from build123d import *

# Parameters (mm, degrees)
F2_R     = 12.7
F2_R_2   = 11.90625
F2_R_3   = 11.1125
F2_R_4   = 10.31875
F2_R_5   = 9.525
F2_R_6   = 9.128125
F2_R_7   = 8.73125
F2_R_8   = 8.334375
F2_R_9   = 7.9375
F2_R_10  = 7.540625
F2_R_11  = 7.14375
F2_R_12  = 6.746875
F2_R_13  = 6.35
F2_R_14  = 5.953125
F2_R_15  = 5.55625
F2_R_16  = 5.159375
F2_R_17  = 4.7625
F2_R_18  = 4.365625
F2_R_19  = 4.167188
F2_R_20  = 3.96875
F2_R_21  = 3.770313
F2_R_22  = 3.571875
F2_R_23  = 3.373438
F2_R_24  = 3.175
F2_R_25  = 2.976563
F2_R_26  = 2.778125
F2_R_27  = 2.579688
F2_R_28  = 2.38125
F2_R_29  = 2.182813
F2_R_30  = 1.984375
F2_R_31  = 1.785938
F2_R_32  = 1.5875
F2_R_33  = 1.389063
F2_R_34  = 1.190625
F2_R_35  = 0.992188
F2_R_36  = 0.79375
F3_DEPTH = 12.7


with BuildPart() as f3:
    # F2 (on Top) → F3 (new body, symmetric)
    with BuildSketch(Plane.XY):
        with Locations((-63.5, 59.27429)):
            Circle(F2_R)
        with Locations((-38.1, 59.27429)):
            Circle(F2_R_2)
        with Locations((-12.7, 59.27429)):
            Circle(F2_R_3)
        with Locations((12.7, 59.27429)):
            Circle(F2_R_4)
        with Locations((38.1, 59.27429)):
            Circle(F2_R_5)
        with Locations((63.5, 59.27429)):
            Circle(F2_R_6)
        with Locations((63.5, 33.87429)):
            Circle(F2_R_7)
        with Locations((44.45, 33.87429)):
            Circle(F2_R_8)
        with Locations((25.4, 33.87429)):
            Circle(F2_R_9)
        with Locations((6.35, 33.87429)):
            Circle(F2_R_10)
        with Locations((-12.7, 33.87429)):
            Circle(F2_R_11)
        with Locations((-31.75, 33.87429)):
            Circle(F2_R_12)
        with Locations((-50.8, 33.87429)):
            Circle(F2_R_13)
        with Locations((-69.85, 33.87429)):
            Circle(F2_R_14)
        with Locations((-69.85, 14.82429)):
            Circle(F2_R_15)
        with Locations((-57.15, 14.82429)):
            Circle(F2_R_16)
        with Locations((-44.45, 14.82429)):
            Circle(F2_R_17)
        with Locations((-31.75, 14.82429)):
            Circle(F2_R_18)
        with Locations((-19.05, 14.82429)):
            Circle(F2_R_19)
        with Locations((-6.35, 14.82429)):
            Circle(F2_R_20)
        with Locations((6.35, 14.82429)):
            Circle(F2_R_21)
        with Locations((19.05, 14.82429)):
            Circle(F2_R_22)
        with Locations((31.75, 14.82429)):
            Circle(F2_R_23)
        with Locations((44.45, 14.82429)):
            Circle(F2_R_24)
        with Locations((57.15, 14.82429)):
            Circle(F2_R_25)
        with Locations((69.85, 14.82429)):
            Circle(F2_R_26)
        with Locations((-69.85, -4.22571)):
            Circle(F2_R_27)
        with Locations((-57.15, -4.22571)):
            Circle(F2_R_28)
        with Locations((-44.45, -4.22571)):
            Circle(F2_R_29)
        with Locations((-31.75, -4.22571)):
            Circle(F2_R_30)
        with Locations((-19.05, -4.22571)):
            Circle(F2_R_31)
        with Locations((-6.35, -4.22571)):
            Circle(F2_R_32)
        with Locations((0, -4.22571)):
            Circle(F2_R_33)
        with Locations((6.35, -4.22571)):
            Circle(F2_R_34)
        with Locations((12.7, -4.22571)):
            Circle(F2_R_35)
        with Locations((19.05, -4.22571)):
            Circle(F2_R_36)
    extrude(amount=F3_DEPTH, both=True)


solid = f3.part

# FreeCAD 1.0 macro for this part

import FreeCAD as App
import Part
import Sketcher
from FreeCAD import Vector
Q = App.Units.Quantity

doc = App.newDocument("Part")
body = doc.addObject("PartDesign::Body", "Body")
body.AllowCompound = True

# Sketch on XY plane
sketch1 = body.newObject("Sketcher::SketchObject", "Sketch")
sketch1.AttachmentSupport = (doc.getObject("XY_Plane"), [""])
sketch1.MapMode = "FlatFace"
sketch1.addGeometry([
    Part.Circle(Vector(-63.5, 59.3, 0), Vector(0, 0, 1), 12.7),  # 0
    Part.Circle(Vector(-38.1, 59.3, 0), Vector(0, 0, 1), 11.9),  # 1
    Part.Circle(Vector(-12.7, 59.3, 0), Vector(0, 0, 1), 11.1),  # 2
    Part.Circle(Vector(12.7, 59.3, 0), Vector(0, 0, 1), 10.3),  # 3
    Part.Circle(Vector(38.1, 59.3, 0), Vector(0, 0, 1), 9.5),  # 4
    Part.Circle(Vector(63.5, 59.3, 0), Vector(0, 0, 1), 9.1),  # 5
    Part.Circle(Vector(63.5, 33.9, 0), Vector(0, 0, 1), 8.7),  # 6
    Part.Circle(Vector(44.5, 33.9, 0), Vector(0, 0, 1), 8.3),  # 7
    Part.Circle(Vector(25.4, 33.9, 0), Vector(0, 0, 1), 7.9),  # 8
    Part.Circle(Vector(6.3, 33.9, 0), Vector(0, 0, 1), 7.5),  # 9
    Part.Circle(Vector(-12.7, 33.9, 0), Vector(0, 0, 1), 7.1),  # 10
    Part.Circle(Vector(-31.8, 33.9, 0), Vector(0, 0, 1), 6.7),  # 11
    Part.Circle(Vector(-50.8, 33.9, 0), Vector(0, 0, 1), 6.3),  # 12
    Part.Circle(Vector(-69.8, 33.9, 0), Vector(0, 0, 1), 6),  # 13
    Part.Circle(Vector(-69.8, 14.8, 0), Vector(0, 0, 1), 5.6),  # 14
    Part.Circle(Vector(-57.1, 14.8, 0), Vector(0, 0, 1), 5.2),  # 15
    Part.Circle(Vector(-44.5, 14.8, 0), Vector(0, 0, 1), 4.8),  # 16
    Part.Circle(Vector(-31.8, 14.8, 0), Vector(0, 0, 1), 4.4),  # 17
    Part.Circle(Vector(-19.1, 14.8, 0), Vector(0, 0, 1), 4.2),  # 18
    Part.Circle(Vector(-6.3, 14.8, 0), Vector(0, 0, 1), 4),  # 19
    Part.Circle(Vector(6.3, 14.8, 0), Vector(0, 0, 1), 3.8),  # 20
    Part.Circle(Vector(19.1, 14.8, 0), Vector(0, 0, 1), 3.6),  # 21
    Part.Circle(Vector(31.8, 14.8, 0), Vector(0, 0, 1), 3.4),  # 22
    Part.Circle(Vector(44.5, 14.8, 0), Vector(0, 0, 1), 3.2),  # 23
    Part.Circle(Vector(57.1, 14.8, 0), Vector(0, 0, 1), 3),  # 24
    Part.Circle(Vector(69.8, 14.8, 0), Vector(0, 0, 1), 2.8),  # 25
    Part.Circle(Vector(-69.8, -4.2, 0), Vector(0, 0, 1), 2.6),  # 26
    Part.Circle(Vector(-57.1, -4.2, 0), Vector(0, 0, 1), 2.4),  # 27
    Part.Circle(Vector(-44.5, -4.2, 0), Vector(0, 0, 1), 2.2),  # 28
    Part.Circle(Vector(-31.8, -4.2, 0), Vector(0, 0, 1), 2),  # 29
    Part.Circle(Vector(-19.1, -4.2, 0), Vector(0, 0, 1), 1.8),  # 30
    Part.Circle(Vector(-6.3, -4.2, 0), Vector(0, 0, 1), 1.6),  # 31
    Part.Circle(Vector(0, -4.2, 0), Vector(0, 0, 1), 1.4),  # 32
    Part.Circle(Vector(6.3, -4.2, 0), Vector(0, 0, 1), 1.2),  # 33
    Part.Circle(Vector(12.7, -4.2, 0), Vector(0, 0, 1), 1),  # 34
    Part.Circle(Vector(19.1, -4.2, 0), Vector(0, 0, 1), 0.8),  # 35
], False)
sketch1.addConstraint([
    Sketcher.Constraint("Symmetric", 2, 3, 3, 3, -2),
    Sketcher.Constraint("Symmetric", 1, 3, 4, 3, -2),
    Sketcher.Constraint("Symmetric", 0, 3, 5, 3, -2),
    Sketcher.Constraint("Symmetric", 19, 3, 20, 3, -2),
    Sketcher.Constraint("Symmetric", 18, 3, 21, 3, -2),
    Sketcher.Constraint("Symmetric", 17, 3, 22, 3, -2),
    Sketcher.Constraint("Symmetric", 16, 3, 23, 3, -2),
    Sketcher.Constraint("Symmetric", 15, 3, 24, 3, -2),
    Sketcher.Constraint("Symmetric", 14, 3, 25, 3, -2),
    Sketcher.Constraint("Symmetric", 31, 3, 33, 3, -2),
    Sketcher.Constraint("Symmetric", 30, 3, 35, 3, -2),
    Sketcher.Constraint("PointOnObject", 32, 3, -2),
    Sketcher.Constraint("Horizontal", 0, 3, 1, 3),
    Sketcher.Constraint("Horizontal", 1, 3, 2, 3),
    Sketcher.Constraint("Horizontal", 6, 3, 7, 3),
    Sketcher.Constraint("Horizontal", 7, 3, 8, 3),
    Sketcher.Constraint("Horizontal", 8, 3, 9, 3),
    Sketcher.Constraint("Horizontal", 9, 3, 10, 3),
    Sketcher.Constraint("Horizontal", 10, 3, 11, 3),
    Sketcher.Constraint("Horizontal", 11, 3, 12, 3),
    Sketcher.Constraint("Horizontal", 12, 3, 13, 3),
    Sketcher.Constraint("Horizontal", 14, 3, 15, 3),
    Sketcher.Constraint("Horizontal", 15, 3, 16, 3),
    Sketcher.Constraint("Horizontal", 16, 3, 17, 3),
    Sketcher.Constraint("Horizontal", 17, 3, 18, 3),
    Sketcher.Constraint("Horizontal", 18, 3, 19, 3),
    Sketcher.Constraint("Horizontal", 26, 3, 27, 3),
    Sketcher.Constraint("Horizontal", 27, 3, 28, 3),
    Sketcher.Constraint("Horizontal", 28, 3, 29, 3),
    Sketcher.Constraint("Horizontal", 29, 3, 30, 3),
    Sketcher.Constraint("Horizontal", 30, 3, 31, 3),
    Sketcher.Constraint("Horizontal", 31, 3, 32, 3),
    Sketcher.Constraint("Horizontal", 33, 3, 34, 3),
    Sketcher.Constraint("Vertical", 5, 3, 6, 3),
    Sketcher.Constraint("Vertical", 2, 3, 10, 3),
    Sketcher.Constraint("Vertical", 13, 3, 14, 3),
    Sketcher.Constraint("Vertical", 11, 3, 17, 3),
    Sketcher.Constraint("Vertical", 9, 3, 20, 3),
    Sketcher.Constraint("Vertical", 7, 3, 23, 3),
    Sketcher.Constraint("Vertical", 14, 3, 26, 3),
    Sketcher.Constraint("Vertical", 15, 3, 27, 3),
    Sketcher.Constraint("Vertical", 16, 3, 28, 3),
    Sketcher.Constraint("Vertical", 17, 3, 29, 3),
    Sketcher.Constraint("Vertical", 18, 3, 30, 3),
    Sketcher.Constraint("Vertical", 19, 3, 31, 3),
    Sketcher.Constraint("Vertical", 3, 3, 34, 3),
    Sketcher.Constraint("Diameter", 0, Q("1 in")),
    Sketcher.Constraint("Diameter", 12, Q("0.5 in")),
    Sketcher.Constraint("Diameter", 4, Q("0.75 in")),
    Sketcher.Constraint("Diameter", 23, Q("0.25 in")),
    Sketcher.Constraint("Diameter", 1, Q("0.9375 in")),
    Sketcher.Constraint("Diameter", 2, Q("0.875 in")),
    Sketcher.Constraint("Diameter", 3, Q("0.8125 in")),
    Sketcher.Constraint("Diameter", 5, Q("0.71875 in")),
    Sketcher.Constraint("Diameter", 6, Q("0.6875 in")),
    Sketcher.Constraint("Diameter", 7, Q("0.65625 in")),
    Sketcher.Constraint("Diameter", 8, Q("0.625 in")),
    Sketcher.Constraint("Diameter", 9, Q("0.59375 in")),
    Sketcher.Constraint("Diameter", 10, Q("0.5625 in")),
    Sketcher.Constraint("Diameter", 11, Q("0.53125 in")),
    Sketcher.Constraint("Diameter", 13, Q("0.46875 in")),
    Sketcher.Constraint("Diameter", 14, Q("0.4375 in")),
    Sketcher.Constraint("Diameter", 15, Q("0.40625 in")),
    Sketcher.Constraint("Diameter", 16, Q("0.375 in")),
    Sketcher.Constraint("Diameter", 17, Q("0.34375 in")),
    Sketcher.Constraint("Diameter", 18, Q("0.328125 in")),
    Sketcher.Constraint("Diameter", 19, Q("0.3125 in")),
    Sketcher.Constraint("Diameter", 20, Q("0.296875 in")),
    Sketcher.Constraint("Diameter", 21, Q("0.28125 in")),
    Sketcher.Constraint("Diameter", 22, Q("0.265625 in")),
    Sketcher.Constraint("Diameter", 24, Q("0.234375 in")),
    Sketcher.Constraint("Diameter", 25, Q("0.21875 in")),
    Sketcher.Constraint("Diameter", 26, Q("0.203125 in")),
    Sketcher.Constraint("Diameter", 27, Q("0.1875 in")),
    Sketcher.Constraint("Diameter", 28, Q("0.171875 in")),
    Sketcher.Constraint("Diameter", 29, Q("0.15625 in")),
    Sketcher.Constraint("Diameter", 30, Q("0.140625 in")),
    Sketcher.Constraint("Diameter", 31, Q("0.125 in")),
    Sketcher.Constraint("Diameter", 32, Q("0.109375 in")),
    Sketcher.Constraint("Diameter", 33, Q("0.09375 in")),
    Sketcher.Constraint("Diameter", 34, Q("0.078125 in")),
    Sketcher.Constraint("Diameter", 35, Q("0.0625 in")),
    Sketcher.Constraint("DistanceX", -1, 1, 8, 3, Q("1 in")),
    Sketcher.Constraint("DistanceX", 12, 3, -1, 1, Q("2 in")),
    Sketcher.Constraint("DistanceX", 0, 3, 1, 3, Q("1 in")),
    Sketcher.Constraint("DistanceX", 1, 3, 2, 3, Q("1 in")),
    Sketcher.Constraint("DistanceX", 2, 3, 3, 3, Q("1 in")),
    Sketcher.Constraint("DistanceY", 6, 3, 5, 3, Q("1 in")),
    Sketcher.Constraint("DistanceX", 15, 3, 11, 3, Q("1 in")),
    Sketcher.Constraint("DistanceX", 14, 3, 16, 3, Q("1 in")),
    Sketcher.Constraint("DistanceX", 16, 3, 18, 3, Q("1 in")),
    Sketcher.Constraint("DistanceX", 18, 3, 9, 3, Q("1 in")),
    Sketcher.Constraint("DistanceX", 17, 3, 19, 3, Q("1 in")),
    Sketcher.Constraint("DistanceX", 9, 3, 7, 3, Q("1.5 in")),
    Sketcher.Constraint("DistanceY", 26, 3, 13, 3, Q("1.5 in")),
    Sketcher.Constraint("DistanceY", 14, 3, 13, 3, Q("0.75 in")),
    Sketcher.Constraint("DistanceY", -1, 1, 0, 3, 59.27429),
])
pad1 = body.newObject("PartDesign::Pad", "Pad")
pad1.Profile = sketch1
pad1.Length = Q("1 in")
pad1.Midplane = True

doc.recompute()
